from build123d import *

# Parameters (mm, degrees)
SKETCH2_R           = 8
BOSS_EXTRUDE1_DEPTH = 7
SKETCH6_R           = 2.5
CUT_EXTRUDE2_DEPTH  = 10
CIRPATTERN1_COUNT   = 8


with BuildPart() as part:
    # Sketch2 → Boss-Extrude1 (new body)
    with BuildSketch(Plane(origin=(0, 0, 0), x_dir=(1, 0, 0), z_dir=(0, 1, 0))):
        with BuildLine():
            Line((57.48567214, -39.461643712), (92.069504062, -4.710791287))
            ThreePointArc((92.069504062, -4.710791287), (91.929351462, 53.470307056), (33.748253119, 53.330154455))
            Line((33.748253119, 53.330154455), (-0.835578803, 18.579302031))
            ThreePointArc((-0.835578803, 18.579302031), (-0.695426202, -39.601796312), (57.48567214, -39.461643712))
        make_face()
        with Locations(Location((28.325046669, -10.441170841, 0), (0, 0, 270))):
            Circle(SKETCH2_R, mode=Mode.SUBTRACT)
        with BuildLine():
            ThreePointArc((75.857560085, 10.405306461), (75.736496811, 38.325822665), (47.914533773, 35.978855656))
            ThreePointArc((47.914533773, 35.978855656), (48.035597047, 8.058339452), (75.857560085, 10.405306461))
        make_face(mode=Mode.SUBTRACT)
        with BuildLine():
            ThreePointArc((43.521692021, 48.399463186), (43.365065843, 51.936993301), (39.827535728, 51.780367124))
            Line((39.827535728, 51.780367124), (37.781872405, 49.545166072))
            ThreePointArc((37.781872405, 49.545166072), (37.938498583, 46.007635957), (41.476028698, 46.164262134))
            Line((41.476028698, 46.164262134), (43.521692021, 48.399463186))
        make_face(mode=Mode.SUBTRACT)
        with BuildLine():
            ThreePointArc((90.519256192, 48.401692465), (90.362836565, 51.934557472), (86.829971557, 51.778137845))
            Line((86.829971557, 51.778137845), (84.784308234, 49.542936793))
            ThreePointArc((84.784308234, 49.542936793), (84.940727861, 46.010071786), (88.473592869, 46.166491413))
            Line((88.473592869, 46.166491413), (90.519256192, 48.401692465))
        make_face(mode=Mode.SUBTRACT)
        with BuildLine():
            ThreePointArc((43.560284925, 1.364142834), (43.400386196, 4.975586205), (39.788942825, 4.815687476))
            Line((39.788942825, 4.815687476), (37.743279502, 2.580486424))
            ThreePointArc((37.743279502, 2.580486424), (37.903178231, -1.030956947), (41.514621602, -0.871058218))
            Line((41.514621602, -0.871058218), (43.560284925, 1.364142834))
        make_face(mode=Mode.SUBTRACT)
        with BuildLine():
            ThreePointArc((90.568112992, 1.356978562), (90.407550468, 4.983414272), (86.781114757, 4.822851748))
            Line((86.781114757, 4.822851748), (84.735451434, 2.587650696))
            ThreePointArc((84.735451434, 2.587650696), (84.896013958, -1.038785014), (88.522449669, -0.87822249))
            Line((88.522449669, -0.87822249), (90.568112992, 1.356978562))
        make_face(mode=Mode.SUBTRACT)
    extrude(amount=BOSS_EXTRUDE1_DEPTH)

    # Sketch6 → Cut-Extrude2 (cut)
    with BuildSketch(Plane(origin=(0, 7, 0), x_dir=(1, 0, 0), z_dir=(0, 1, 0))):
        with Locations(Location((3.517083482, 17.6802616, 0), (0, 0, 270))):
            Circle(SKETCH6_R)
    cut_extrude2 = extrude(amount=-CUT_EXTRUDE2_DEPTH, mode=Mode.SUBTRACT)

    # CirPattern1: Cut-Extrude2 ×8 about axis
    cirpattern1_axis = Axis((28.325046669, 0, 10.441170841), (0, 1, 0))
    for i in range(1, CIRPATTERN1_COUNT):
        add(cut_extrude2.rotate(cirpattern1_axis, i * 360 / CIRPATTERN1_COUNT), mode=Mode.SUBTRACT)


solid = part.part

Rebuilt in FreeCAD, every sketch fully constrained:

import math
import FreeCAD as App
import Part
import Sketcher

doc = App.newDocument("Part")
params = doc.addObject("Spreadsheet::Sheet", "Params")
for row, (alias, value) in enumerate([
    ("sketch1_diameter", "16 mm"),
    ("sketch1_radius", "19 mm"),
    ("pad1_length", "7 mm"),
    ("sketch2_diameter", "5 mm"),
    ("pocket1_length", "10 mm"),
], start=1):
    params.set(f"A{row}", alias)
    params.set(f"B{row}", "=" + value)
    params.setAlias(f"B{row}", alias)

body = doc.addObject("PartDesign::Body", "Body")

# Sketch on XZ plane
sketch1 = body.newObject("Sketcher::SketchObject", "Sketch")
sketch1.AttachmentSupport = (doc.getObject("XZ_Plane"), [""])
sketch1.MapMode = "FlatFace"
sketch1.addGeometry(Part.LineSegment(App.Vector(57.5, 39.5, 0), App.Vector(92.1, 4.7, 0)), False)
sketch1.addGeometry(Part.ArcOfCircle(Part.Circle(App.Vector(62.9, -24.3, 0), App.Vector(0, 0, 1), 41.1), math.radians(-135), math.radians(45)), False)
sketch1.addGeometry(Part.LineSegment(App.Vector(33.7, -53.3, 0), App.Vector(-0.8, -18.6, 0)), False)
sketch1.addGeometry(Part.ArcOfCircle(Part.Circle(App.Vector(28.3, 10.4, 0), App.Vector(0, 0, 1), 41.1), math.radians(45), math.radians(225)), False)
sketch1.addGeometry(Part.Circle(App.Vector(28.3, 10.4, 0), App.Vector(0, 0, 1), 8), False)
sketch1.addGeometry(Part.ArcOfCircle(Part.Circle(App.Vector(41.7, -3.1, 0), App.Vector(0, 0, 1), 2.6), math.radians(-138), math.radians(42)), False)
sketch1.addGeometry(Part.LineSegment(App.Vector(43.6, -1.4, 0), App.Vector(41.5, 0.9, 0)), False)
sketch1.addGeometry(Part.ArcOfCircle(Part.Circle(App.Vector(39.6, -0.9, 0), App.Vector(0, 0, 1), 2.6), math.radians(42), math.radians(222)), False)
sketch1.addGeometry(Part.LineSegment(App.Vector(37.7, -2.6, 0), App.Vector(39.8, -4.8, 0)), False)
sketch1.addGeometry(Part.ArcOfCircle(Part.Circle(App.Vector(88.7, -3.1, 0), App.Vector(0, 0, 1), 2.6), math.radians(-138), math.radians(42)), False)
sketch1.addGeometry(Part.LineSegment(App.Vector(90.6, -1.4, 0), App.Vector(88.5, 0.9, 0)), False)
sketch1.addGeometry(Part.ArcOfCircle(Part.Circle(App.Vector(86.6, -0.9, 0), App.Vector(0, 0, 1), 2.6), math.radians(42), math.radians(222)), False)
sketch1.addGeometry(Part.LineSegment(App.Vector(84.7, -2.6, 0), App.Vector(86.8, -4.8, 0)), False)
sketch1.addGeometry(Part.ArcOfCircle(Part.Circle(App.Vector(41.7, -50.1, 0), App.Vector(0, 0, 1), 2.5), math.radians(-138), math.radians(42)), False)
sketch1.addGeometry(Part.LineSegment(App.Vector(43.5, -48.4, 0), App.Vector(41.5, -46.2, 0)), False)
sketch1.addGeometry(Part.ArcOfCircle(Part.Circle(App.Vector(39.6, -47.9, 0), App.Vector(0, 0, 1), 2.5), math.radians(42), math.radians(222)), False)
sketch1.addGeometry(Part.LineSegment(App.Vector(37.8, -49.5, 0), App.Vector(39.8, -51.8, 0)), False)
sketch1.addGeometry(Part.ArcOfCircle(Part.Circle(App.Vector(62.9, -24.3, 0), App.Vector(0, 0, 1), 19), math.radians(-142), math.radians(47)), False)
sketch1.addGeometry(Part.ArcOfCircle(Part.Circle(App.Vector(60.9, -22.1, 0), App.Vector(0, 0, 1), 19), math.radians(38), math.radians(227)), False)
sketch1.addGeometry(Part.ArcOfCircle(Part.Circle(App.Vector(88.7, -50.1, 0), App.Vector(0, 0, 1), 2.5), math.radians(-138), math.radians(42)), False)
sketch1.addGeometry(Part.LineSegment(App.Vector(90.5, -48.4, 0), App.Vector(88.5, -46.2, 0)), False)
sketch1.addGeometry(Part.ArcOfCircle(Part.Circle(App.Vector(86.6, -47.9, 0), App.Vector(0, 0, 1), 2.5), math.radians(42), math.radians(222)), False)
sketch1.addGeometry(Part.LineSegment(App.Vector(84.8, -49.5, 0), App.Vector(86.8, -51.8, 0)), False)
sketch1.addConstraint(Sketcher.Constraint("Tangent", 0, 2, 1, 2))
sketch1.addConstraint(Sketcher.Constraint("Tangent", 1, 1, 2, 1))
sketch1.addConstraint(Sketcher.Constraint("Tangent", 2, 2, 3, 2))
sketch1.addConstraint(Sketcher.Constraint("Tangent", 3, 1, 0, 1))
sketch1.addConstraint(Sketcher.Constraint("Tangent", 5, 2, 6, 1))
sketch1.addConstraint(Sketcher.Constraint("Tangent", 6, 2, 7, 1))
sketch1.addConstraint(Sketcher.Constraint("Tangent", 7, 2, 8, 1))
sketch1.addConstraint(Sketcher.Constraint("Tangent", 8, 2, 5, 1))
sketch1.addConstraint(Sketcher.Constraint("Tangent", 9, 2, 10, 1))
sketch1.addConstraint(Sketcher.Constraint("Tangent", 10, 2, 11, 1))
sketch1.addConstraint(Sketcher.Constraint("Tangent", 11, 2, 12, 1))
sketch1.addConstraint(Sketcher.Constraint("Tangent", 12, 2, 9, 1))
sketch1.addConstraint(Sketcher.Constraint("Tangent", 13, 2, 14, 1))
sketch1.addConstraint(Sketcher.Constraint("Tangent", 14, 2, 15, 1))
sketch1.addConstraint(Sketcher.Constraint("Tangent", 15, 2, 16, 1))
sketch1.addConstraint(Sketcher.Constraint("Tangent", 16, 2, 13, 1))
sketch1.addConstraint(Sketcher.Constraint("Coincident", 17, 1, 18, 2))
sketch1.addConstraint(Sketcher.Constraint("Coincident", 18, 1, 17, 2))
sketch1.addConstraint(Sketcher.Constraint("Tangent", 19, 2, 20, 1))
sketch1.addConstraint(Sketcher.Constraint("Tangent", 20, 2, 21, 1))
sketch1.addConstraint(Sketcher.Constraint("Tangent", 21, 2, 22, 1))
sketch1.addConstraint(Sketcher.Constraint("Tangent", 22, 2, 19, 1))
sketch1.addConstraint(Sketcher.Constraint("Coincident", 4, 3, 3, 3))
sketch1.addConstraint(Sketcher.Constraint("Coincident", 17, 3, 1, 3))
sketch1.addConstraint(Sketcher.Constraint("Equal", 1, 3))
sketch1.addConstraint(Sketcher.Constraint("Equal", 5, 7))
sketch1.addConstraint(Sketcher.Constraint("Equal", 9, 11))
sketch1.addConstraint(Sketcher.Constraint("Equal", 13, 15))
sketch1.addConstraint(Sketcher.Constraint("Equal", 17, 18))
sketch1.addConstraint(Sketcher.Constraint("Equal", 19, 21))
sketch1.addConstraint(Sketcher.Constraint("Parallel", 8, 10))
sketch1.addConstraint(Sketcher.Constraint("Parallel", 12, 14))
sketch1.addConstraint(Sketcher.Constraint("Parallel", 16, 20))
sketch1.addConstraint(Sketcher.Constraint("Horizontal", 5, 3, 9, 3))
sketch1.addConstraint(Sketcher.Constraint("Horizontal", 7, 3, 11, 3))
sketch1.addConstraint(Sketcher.Constraint("Horizontal", 13, 3, 19, 3))
sketch1.addConstraint(Sketcher.Constraint("Horizontal", 15, 3, 21, 3))
sketch1.addConstraint(Sketcher.Constraint("Vertical", 5, 3, 13, 3))
sketch1.addConstraint(Sketcher.Constraint("Vertical", 7, 3, 15, 3))
sketch1.addConstraint(Sketcher.Constraint("Vertical", 9, 3, 19, 3))
sketch1.addConstraint(Sketcher.Constraint("Diameter", 4, 16.0))
sketch1.addConstraint(Sketcher.Constraint("Radius", 17, 19.0))
sketch1.addConstraint(Sketcher.Constraint("DistanceX", 5, 3, 9, 3, 47.0))
sketch1.addConstraint(Sketcher.Constraint("DistanceY", 13, 3, 5, 3, 47.0))
sketch1.addConstraint(Sketcher.Constraint("Radius", 1, 41.140369))
sketch1.addConstraint(Sketcher.Constraint("Radius", 9, 2.566789))
sketch1.addConstraint(Sketcher.Constraint("Radius", 19, 2.50056))
sketch1.addConstraint(Sketcher.Constraint("Radius", 5, 2.556178))
sketch1.addConstraint(Sketcher.Constraint("Radius", 13, 2.503862))
sketch1.addConstraint(Sketcher.Constraint("DistanceX", 11, 2, 10, 2, 3.786998))
sketch1.addConstraint(Sketcher.Constraint("DistanceY", 5, 3, 7, 3, 2.235201))
sketch1.addConstraint(Sketcher.Constraint("DistanceY", 17, 3, 18, 3, 2.235201))
sketch1.addConstraint(Sketcher.Constraint("DistanceX", 5, 3, 18, 3, 19.188601))
sketch1.addConstraint(Sketcher.Constraint("DistanceX", -1, 1, 1, 3, 62.908879))
sketch1.addConstraint(Sketcher.Constraint("DistanceY", 1, 3, -1, 1, 24.309682))
sketch1.addConstraint(Sketcher.Constraint("DistanceY", -1, 1, 3, 3, 10.441171))
sketch1.addConstraint(Sketcher.Constraint("DistanceX", -1, 1, 7, 3, 39.628951))
sketch1.addConstraint(Sketcher.Constraint("DistanceY", -1, 1, 0, 2, 4.710791))
sketch1.addConstraint(Sketcher.Constraint("DistanceY", -1, 1, 6, 2, 0.871058))
sketch1.setExpression("Constraints[40]", "Params.sketch1_diameter")
sketch1.setExpression("Constraints[41]", "Params.sketch1_radius")
pad1 = body.newObject("PartDesign::Pad", "Pad")
pad1.Profile = sketch1
pad1.setExpression("Length", "Params.pad1_length")
pad1.Reversed = True

# Sketch on XZ plane
sketch2 = body.newObject("Sketcher::SketchObject", "Sketch001")
sketch2.AttachmentSupport = (doc.getObject("XZ_Plane"), [""])
sketch2.MapMode = "FlatFace"
sketch2.AttachmentOffset = App.Placement(App.Vector(0, 0, -7), App.Rotation())
sketch2.addGeometry(Part.Circle(App.Vector(3.5, -17.7, 0), App.Vector(0, 0, 1), 2.5), False)
sketch2.addConstraint(Sketcher.Constraint("Diameter", 0, 5.0))
sketch2.addConstraint(Sketcher.Constraint("DistanceY", 0, 3, -1, 1, 17.680262))
sketch2.addConstraint(Sketcher.Constraint("DistanceX", -1, 1, 0, 3, 3.517083))
sketch2.setExpression("Constraints[0]", "Params.sketch2_diameter")
pocket1 = body.newObject("PartDesign::Pocket", "Pocket")
pocket1.Profile = sketch2
pocket1.setExpression("Length", "Params.pocket1_length")
pocket1.Reversed = True
doc.recompute()

datumline = body.newObject("PartDesign::Line", "DatumLine")
datumline.Placement = App.Placement(App.Vector(28.325047, 0, 10.441171), App.Rotation(App.Vector(0, 0, 1), App.Vector(0, 1, 0)))
polarpattern = body.newObject("PartDesign::PolarPattern", "PolarPattern")
polarpattern.Originals = [pocket1]
polarpattern.Axis = (datumline, [""])
polarpattern.Angle = 360
polarpattern.Occurrences = 8
body.Tip = polarpattern

doc.recompute()
